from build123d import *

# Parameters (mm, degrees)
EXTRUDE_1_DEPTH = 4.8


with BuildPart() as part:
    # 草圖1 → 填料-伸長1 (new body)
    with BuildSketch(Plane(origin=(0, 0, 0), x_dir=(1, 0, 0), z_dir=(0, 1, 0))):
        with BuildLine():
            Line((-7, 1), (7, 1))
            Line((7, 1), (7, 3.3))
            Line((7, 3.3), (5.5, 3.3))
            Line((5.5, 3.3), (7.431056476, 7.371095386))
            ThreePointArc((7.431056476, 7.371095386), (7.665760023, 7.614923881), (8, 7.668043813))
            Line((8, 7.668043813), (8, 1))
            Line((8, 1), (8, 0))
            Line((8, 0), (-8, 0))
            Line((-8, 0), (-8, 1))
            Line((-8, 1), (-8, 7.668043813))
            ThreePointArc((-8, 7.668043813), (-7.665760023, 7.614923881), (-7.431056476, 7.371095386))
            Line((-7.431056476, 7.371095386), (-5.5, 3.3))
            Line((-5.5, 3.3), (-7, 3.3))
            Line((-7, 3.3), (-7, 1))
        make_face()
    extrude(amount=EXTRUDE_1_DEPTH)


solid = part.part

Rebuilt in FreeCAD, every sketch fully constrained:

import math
import FreeCAD as App
import Part
import Sketcher
from FreeCAD import Vector
Q = App.Units.Quantity

doc = App.newDocument("Part")
params = doc.addObject("Spreadsheet::Sheet", "Params")
for row, (alias, value) in enumerate([
    ("sketch1_width", "14 mm"),
    ("sketch1_width2", "16 mm"),
    ("sketch1_width3", "1.5 mm"),
    ("sketch1_height", "2.3 mm"),
    ("pad1_length", "4.8 mm"),
], start=1):
    params.set(f"A{row}", alias)
    params.set(f"B{row}", "=" + value)
    params.setAlias(f"B{row}", alias)

body = doc.addObject("PartDesign::Body", "Body")

sketch1 = body.newObject("Sketcher::SketchObject", "Sketch")
sketch1.AttachmentSupport = (doc.getObject("XZ_Plane"), [""])
sketch1.MapMode = "FlatFace"
sketch1.addGeometry([
    Part.LineSegment(Vector(7, -1, 0), Vector(-7, -1, 0)),
    Part.LineSegment(Vector(-7, -1, 0), Vector(-7, -3.3, 0)),
    Part.LineSegment(Vector(-7, -3.3, 0), Vector(-5.5, -3.3, 0)),
    Part.LineSegment(Vector(-5.5, -3.3, 0), Vector(-7.4, -7.4, 0)),
    Part.ArcOfCircle(Part.Circle(Vector(-7.9, -7.1, 0), Vector(0, 0, 1), 0.5), math.radians(-100), math.radians(-25)),
    Part.LineSegment(Vector(-8, -7.7, 0), Vector(-8, 0, 0)),
    Part.LineSegment(Vector(-8, 0, 0), Vector(8, 0, 0)),
    Part.LineSegment(Vector(8, 0, 0), Vector(8, -7.7, 0)),
    Part.ArcOfCircle(Part.Circle(Vector(7.9, -7.1, 0), Vector(0, 0, 1), 0.5), math.radians(-155), math.radians(-80)),
    Part.LineSegment(Vector(7.4, -7.4, 0), Vector(5.5, -3.3, 0)),
    Part.LineSegment(Vector(5.5, -3.3, 0), Vector(7, -3.3, 0)),
    Part.LineSegment(Vector(7, -3.3, 0), Vector(7, -1, 0)),
], False)
sketch1.addConstraint([
    Sketcher.Constraint("Coincident", 0, 2, 1, 1),
    Sketcher.Constraint("Coincident", 1, 2, 2, 1),
    Sketcher.Constraint("Coincident", 2, 2, 3, 1),
    Sketcher.Constraint("Tangent", 3, 2, 4, 2),
    Sketcher.Constraint("Coincident", 4, 1, 5, 1),
    Sketcher.Constraint("Coincident", 5, 2, 6, 1),
    Sketcher.Constraint("Coincident", 6, 2, 7, 1),
    Sketcher.Constraint("Coincident", 7, 2, 8, 2),
    Sketcher.Constraint("Tangent", 8, 1, 9, 1),
    Sketcher.Constraint("Coincident", 9, 2, 10, 1),
    Sketcher.Constraint("Coincident", 10, 2, 11, 1),
    Sketcher.Constraint("Coincident", 11, 2, 0, 1),
    Sketcher.Constraint("Horizontal", 0),
    Sketcher.Constraint("Vertical", 1),
    Sketcher.Constraint("Horizontal", 2),
    Sketcher.Constraint("Vertical", 5),
    Sketcher.Constraint("Horizontal", 6),
    Sketcher.Constraint("Vertical", 7),
    Sketcher.Constraint("Horizontal", 10),
    Sketcher.Constraint("Vertical", 11),
    Sketcher.Constraint("Equal", 4, 8),
    Sketcher.Constraint("Symmetric", 5, 2, 6, 2, -1, 1),
    Sketcher.Constraint("Symmetric", 4, 3, 8, 3, -2),
    Sketcher.Constraint("Symmetric", 2, 2, 9, 2, -2),
    Sketcher.Constraint("Equal", 2, 10),
    Sketcher.Constraint("DistanceX", 0, 2, 0, 1, Q("14 mm")),
    Sketcher.Constraint("DistanceX", 6, 1, 6, 2, Q("16 mm")),
    Sketcher.Constraint("DistanceX", 2, 1, 2, 2, Q("1.5 mm")),
    Sketcher.Constraint("DistanceY", 1, 2, 1, 1, Q("2.3 mm")),
    Sketcher.Constraint("DistanceY", 0, 2, -1, 1, Q("1 mm")),
    Sketcher.Constraint("Radius", 4, Q("0.532434 mm")),
    Sketcher.Constraint("DistanceY", 5, 1, 5, 2, Q("7.668044 mm")),
    Sketcher.Constraint("DistanceX", 4, 3, 3, 2, Q("0.48106 mm")),
])
sketch1.setExpression("Constraints[25]", "Params.sketch1_width")
sketch1.setExpression("Constraints[26]", "Params.sketch1_width2")
sketch1.setExpression("Constraints[27]", "Params.sketch1_width3")
sketch1.setExpression("Constraints[28]", "Params.sketch1_height")
pad1 = body.newObject("PartDesign::Pad", "Pad")
pad1.Profile = sketch1
pad1.setExpression("Length", "Params.pad1_length")
pad1.Reversed = True

doc.recompute()
